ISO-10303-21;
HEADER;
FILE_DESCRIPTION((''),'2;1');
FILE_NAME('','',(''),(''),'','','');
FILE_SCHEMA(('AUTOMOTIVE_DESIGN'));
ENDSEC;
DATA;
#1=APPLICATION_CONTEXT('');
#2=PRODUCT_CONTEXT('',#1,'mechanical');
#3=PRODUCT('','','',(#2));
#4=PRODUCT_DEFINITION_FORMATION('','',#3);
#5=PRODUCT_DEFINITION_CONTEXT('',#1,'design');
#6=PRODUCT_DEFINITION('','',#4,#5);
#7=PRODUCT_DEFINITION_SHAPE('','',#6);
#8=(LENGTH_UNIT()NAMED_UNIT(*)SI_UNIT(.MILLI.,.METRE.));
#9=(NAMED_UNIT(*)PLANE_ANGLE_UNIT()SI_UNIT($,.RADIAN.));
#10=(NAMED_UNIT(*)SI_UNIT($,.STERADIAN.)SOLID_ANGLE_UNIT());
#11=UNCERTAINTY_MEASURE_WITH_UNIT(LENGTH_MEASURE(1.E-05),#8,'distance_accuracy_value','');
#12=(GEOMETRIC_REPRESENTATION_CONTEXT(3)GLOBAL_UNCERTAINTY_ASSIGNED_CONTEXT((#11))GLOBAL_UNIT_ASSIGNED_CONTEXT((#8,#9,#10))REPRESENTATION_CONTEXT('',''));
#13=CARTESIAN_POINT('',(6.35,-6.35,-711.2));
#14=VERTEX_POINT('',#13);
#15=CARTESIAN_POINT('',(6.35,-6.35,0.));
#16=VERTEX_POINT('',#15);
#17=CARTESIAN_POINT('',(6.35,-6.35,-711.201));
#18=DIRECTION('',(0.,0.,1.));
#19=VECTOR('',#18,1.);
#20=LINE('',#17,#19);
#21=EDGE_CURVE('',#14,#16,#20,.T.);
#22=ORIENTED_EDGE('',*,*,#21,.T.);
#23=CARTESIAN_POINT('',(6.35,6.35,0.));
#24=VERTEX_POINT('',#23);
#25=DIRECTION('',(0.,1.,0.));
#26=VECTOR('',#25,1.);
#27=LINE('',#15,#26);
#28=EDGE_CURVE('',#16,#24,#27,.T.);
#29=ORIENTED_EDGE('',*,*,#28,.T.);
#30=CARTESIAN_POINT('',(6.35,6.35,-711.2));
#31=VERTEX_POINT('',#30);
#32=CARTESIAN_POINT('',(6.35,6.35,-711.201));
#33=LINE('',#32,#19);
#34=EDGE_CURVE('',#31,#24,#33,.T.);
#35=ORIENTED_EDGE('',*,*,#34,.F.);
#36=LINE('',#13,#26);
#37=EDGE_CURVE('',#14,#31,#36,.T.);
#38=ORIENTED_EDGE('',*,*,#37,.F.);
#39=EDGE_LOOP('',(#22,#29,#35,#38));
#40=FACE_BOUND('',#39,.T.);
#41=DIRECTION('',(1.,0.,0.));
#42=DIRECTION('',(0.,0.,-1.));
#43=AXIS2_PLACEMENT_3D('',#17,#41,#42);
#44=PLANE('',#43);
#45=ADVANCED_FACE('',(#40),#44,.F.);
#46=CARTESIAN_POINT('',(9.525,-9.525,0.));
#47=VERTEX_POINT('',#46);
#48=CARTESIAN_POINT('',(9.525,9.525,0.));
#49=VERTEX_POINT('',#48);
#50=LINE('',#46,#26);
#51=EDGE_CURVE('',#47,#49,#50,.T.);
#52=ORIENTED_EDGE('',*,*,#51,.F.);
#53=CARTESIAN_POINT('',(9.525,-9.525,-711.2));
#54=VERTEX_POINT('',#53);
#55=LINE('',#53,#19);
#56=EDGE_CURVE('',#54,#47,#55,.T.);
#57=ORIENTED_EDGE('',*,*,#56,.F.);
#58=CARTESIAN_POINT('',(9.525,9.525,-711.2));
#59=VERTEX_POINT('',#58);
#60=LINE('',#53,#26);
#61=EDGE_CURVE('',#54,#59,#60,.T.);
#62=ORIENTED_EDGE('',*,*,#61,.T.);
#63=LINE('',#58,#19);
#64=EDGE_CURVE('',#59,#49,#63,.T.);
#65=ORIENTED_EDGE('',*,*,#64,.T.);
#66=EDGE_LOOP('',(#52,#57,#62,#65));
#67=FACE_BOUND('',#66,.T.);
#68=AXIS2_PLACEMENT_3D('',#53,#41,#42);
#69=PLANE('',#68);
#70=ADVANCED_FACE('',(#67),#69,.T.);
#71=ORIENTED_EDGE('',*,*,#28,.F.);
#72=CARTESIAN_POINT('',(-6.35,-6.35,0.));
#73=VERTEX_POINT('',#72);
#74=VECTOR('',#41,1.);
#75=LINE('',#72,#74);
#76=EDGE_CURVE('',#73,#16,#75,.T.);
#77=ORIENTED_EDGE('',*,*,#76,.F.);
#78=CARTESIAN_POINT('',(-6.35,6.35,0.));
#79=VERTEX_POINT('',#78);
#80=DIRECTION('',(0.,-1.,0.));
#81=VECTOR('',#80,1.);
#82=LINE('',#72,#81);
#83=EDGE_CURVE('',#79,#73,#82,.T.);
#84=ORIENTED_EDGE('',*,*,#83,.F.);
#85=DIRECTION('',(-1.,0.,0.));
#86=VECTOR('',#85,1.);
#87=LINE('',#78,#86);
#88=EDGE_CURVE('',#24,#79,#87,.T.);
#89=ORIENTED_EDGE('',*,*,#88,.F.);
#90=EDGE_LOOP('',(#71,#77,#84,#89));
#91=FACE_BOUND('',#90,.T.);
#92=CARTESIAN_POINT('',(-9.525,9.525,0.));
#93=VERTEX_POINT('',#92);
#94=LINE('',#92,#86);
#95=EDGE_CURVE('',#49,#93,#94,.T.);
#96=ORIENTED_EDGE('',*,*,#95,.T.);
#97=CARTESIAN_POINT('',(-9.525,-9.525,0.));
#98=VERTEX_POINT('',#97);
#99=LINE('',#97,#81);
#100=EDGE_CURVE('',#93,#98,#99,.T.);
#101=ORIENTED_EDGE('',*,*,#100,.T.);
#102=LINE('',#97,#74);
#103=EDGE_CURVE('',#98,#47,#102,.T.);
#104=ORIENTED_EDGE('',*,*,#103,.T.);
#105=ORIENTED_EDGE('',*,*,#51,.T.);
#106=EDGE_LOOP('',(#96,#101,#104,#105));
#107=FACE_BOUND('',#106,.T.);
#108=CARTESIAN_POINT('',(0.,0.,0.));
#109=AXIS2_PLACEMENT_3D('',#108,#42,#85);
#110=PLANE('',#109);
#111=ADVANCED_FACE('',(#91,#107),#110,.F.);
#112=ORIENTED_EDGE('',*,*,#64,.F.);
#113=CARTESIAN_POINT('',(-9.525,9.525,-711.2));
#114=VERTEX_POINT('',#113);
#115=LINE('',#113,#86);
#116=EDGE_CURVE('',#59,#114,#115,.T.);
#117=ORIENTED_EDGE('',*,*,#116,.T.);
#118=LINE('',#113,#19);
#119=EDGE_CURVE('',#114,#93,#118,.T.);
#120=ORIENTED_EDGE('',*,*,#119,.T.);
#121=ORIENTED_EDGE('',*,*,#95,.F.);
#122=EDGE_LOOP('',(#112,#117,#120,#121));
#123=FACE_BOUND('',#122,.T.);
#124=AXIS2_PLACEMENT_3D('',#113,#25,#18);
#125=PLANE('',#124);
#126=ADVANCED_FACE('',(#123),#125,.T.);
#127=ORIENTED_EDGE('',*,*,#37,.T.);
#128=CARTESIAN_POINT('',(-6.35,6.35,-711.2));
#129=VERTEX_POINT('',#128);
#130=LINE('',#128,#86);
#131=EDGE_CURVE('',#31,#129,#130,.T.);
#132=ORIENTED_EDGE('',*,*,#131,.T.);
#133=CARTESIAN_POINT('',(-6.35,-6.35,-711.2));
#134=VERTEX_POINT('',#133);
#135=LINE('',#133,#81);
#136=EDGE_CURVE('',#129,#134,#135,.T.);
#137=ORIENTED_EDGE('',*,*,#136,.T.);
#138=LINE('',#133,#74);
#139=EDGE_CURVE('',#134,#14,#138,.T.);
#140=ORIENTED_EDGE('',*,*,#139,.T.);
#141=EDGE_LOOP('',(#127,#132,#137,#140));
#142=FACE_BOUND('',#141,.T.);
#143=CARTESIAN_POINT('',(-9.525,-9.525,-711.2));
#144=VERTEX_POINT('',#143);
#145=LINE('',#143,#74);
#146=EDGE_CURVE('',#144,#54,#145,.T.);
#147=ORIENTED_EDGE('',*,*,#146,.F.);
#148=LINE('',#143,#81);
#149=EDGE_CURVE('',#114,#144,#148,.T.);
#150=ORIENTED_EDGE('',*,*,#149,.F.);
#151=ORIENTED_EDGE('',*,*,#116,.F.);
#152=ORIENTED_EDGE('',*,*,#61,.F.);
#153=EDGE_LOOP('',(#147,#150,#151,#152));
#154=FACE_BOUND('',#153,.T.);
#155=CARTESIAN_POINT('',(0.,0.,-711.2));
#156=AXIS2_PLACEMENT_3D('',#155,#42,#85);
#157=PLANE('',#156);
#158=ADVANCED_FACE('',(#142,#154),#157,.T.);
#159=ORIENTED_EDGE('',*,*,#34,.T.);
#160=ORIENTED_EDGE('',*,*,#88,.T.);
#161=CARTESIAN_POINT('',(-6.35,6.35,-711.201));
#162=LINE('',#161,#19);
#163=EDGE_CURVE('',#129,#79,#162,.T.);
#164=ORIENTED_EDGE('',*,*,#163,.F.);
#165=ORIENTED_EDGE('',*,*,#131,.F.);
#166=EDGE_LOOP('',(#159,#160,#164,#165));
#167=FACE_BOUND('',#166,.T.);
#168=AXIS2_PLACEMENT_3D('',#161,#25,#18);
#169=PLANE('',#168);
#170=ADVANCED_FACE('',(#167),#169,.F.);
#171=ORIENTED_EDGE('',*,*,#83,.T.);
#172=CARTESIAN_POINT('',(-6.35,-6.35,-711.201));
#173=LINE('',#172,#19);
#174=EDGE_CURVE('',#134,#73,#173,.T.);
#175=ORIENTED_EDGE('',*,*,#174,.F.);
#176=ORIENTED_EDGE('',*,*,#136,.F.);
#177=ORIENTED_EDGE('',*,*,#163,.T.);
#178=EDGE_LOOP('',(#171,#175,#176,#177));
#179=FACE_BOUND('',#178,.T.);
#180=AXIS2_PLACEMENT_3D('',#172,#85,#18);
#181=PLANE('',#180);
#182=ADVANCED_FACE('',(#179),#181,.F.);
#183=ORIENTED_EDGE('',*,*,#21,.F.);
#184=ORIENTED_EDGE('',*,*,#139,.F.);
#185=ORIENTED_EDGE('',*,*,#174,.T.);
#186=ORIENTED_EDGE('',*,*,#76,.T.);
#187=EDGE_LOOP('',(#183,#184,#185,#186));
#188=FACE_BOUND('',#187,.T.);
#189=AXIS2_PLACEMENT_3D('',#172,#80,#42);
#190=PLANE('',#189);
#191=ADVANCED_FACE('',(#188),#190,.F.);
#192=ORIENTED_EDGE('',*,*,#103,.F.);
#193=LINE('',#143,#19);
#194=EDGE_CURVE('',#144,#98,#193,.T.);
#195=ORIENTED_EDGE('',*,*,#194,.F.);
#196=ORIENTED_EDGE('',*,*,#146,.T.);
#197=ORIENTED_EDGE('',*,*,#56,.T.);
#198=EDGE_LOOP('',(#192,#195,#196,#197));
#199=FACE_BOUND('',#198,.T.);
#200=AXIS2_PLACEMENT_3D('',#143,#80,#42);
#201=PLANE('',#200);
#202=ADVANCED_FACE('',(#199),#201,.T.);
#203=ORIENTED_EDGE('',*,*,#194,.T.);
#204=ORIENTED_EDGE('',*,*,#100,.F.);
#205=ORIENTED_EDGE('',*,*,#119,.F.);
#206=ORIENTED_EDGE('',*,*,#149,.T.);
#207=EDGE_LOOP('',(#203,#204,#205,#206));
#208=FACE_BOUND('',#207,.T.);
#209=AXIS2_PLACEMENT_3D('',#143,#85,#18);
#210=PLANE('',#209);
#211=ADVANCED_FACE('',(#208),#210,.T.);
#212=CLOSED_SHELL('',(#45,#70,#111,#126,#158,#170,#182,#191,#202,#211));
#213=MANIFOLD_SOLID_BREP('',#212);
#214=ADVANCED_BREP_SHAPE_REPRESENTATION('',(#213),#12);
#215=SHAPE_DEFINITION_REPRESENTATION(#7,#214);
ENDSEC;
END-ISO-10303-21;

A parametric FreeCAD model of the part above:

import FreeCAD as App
import Part
import Sketcher
Q = App.Units.Quantity

doc = App.newDocument("Part")
body = doc.addObject("PartDesign::Body", "Body")

sketch1 = body.newObject("Sketcher::SketchObject", "Sketch")
sketch1.AttachmentSupport = (doc.getObject("XY_Plane"), [""])
sketch1.MapMode = "FlatFace"
sketch1.addGeometry([
    Part.LineSegment(App.Vector(-9.525, 9.525, 0), App.Vector(-9.525, -9.525, 0)),
    Part.LineSegment(App.Vector(-9.525, -9.525, 0), App.Vector(9.525, -9.525, 0)),
    Part.LineSegment(App.Vector(9.525, -9.525, 0), App.Vector(9.525, 9.525, 0)),
    Part.LineSegment(App.Vector(9.525, 9.525, 0), App.Vector(-9.525, 9.525, 0)),
], False)
sketch1.addConstraint([
    Sketcher.Constraint("Coincident", 0, 2, 1, 1),
    Sketcher.Constraint("Coincident", 1, 2, 2, 1),
    Sketcher.Constraint("Coincident", 2, 2, 3, 1),
    Sketcher.Constraint("Coincident", 3, 2, 0, 1),
    Sketcher.Constraint("Vertical", 0),
    Sketcher.Constraint("Horizontal", 1),
    Sketcher.Constraint("Vertical", 2),
    Sketcher.Constraint("Horizontal", 3),
    Sketcher.Constraint("Symmetric", 0, 2, 2, 2, -1, 1),
    Sketcher.Constraint("Equal", 3, 0),
    Sketcher.Constraint("DistanceX", 1, 1, 1, 2, Q("0.75 in")),
])
pad1 = body.newObject("PartDesign::Pad", "Pad")
pad1.Profile = sketch1
pad1.Length = Q("28 in")
pad1.Reversed = True

sketch2 = body.newObject("Sketcher::SketchObject", "Sketch001")
sketch2.AttachmentSupport = (doc.getObject("XY_Plane"), [""])
sketch2.MapMode = "FlatFace"
sketch2.addGeometry([
    Part.LineSegment(App.Vector(-6.35, 6.35, 0), App.Vector(-6.35, -6.35, 0)),
    Part.LineSegment(App.Vector(-6.35, -6.35, 0), App.Vector(6.35, -6.35, 0)),
    Part.LineSegment(App.Vector(6.35, -6.35, 0), App.Vector(6.35, 6.35, 0)),
    Part.LineSegment(App.Vector(6.35, 6.35, 0), App.Vector(-6.35, 6.35, 0)),
], False)
sketch2.addConstraint([
    Sketcher.Constraint("Coincident", 0, 2, 1, 1),
    Sketcher.Constraint("Coincident", 1, 2, 2, 1),
    Sketcher.Constraint("Coincident", 2, 2, 3, 1),
    Sketcher.Constraint("Coincident", 3, 2, 0, 1),
    Sketcher.Constraint("Vertical", 0),
    Sketcher.Constraint("Horizontal", 1),
    Sketcher.Constraint("Vertical", 2),
    Sketcher.Constraint("Horizontal", 3),
    Sketcher.Constraint("Symmetric", 0, 2, 2, 2, -1, 1),
    Sketcher.Constraint("Equal", 3, 0),
    Sketcher.Constraint("DistanceX", 1, 1, 1, 2, Q("0.5 in")),
])
pocket1 = body.newObject("PartDesign::Pocket", "Pocket")
pocket1.Profile = sketch2
pocket1.Type = "UpToFirst"

doc.recompute()
